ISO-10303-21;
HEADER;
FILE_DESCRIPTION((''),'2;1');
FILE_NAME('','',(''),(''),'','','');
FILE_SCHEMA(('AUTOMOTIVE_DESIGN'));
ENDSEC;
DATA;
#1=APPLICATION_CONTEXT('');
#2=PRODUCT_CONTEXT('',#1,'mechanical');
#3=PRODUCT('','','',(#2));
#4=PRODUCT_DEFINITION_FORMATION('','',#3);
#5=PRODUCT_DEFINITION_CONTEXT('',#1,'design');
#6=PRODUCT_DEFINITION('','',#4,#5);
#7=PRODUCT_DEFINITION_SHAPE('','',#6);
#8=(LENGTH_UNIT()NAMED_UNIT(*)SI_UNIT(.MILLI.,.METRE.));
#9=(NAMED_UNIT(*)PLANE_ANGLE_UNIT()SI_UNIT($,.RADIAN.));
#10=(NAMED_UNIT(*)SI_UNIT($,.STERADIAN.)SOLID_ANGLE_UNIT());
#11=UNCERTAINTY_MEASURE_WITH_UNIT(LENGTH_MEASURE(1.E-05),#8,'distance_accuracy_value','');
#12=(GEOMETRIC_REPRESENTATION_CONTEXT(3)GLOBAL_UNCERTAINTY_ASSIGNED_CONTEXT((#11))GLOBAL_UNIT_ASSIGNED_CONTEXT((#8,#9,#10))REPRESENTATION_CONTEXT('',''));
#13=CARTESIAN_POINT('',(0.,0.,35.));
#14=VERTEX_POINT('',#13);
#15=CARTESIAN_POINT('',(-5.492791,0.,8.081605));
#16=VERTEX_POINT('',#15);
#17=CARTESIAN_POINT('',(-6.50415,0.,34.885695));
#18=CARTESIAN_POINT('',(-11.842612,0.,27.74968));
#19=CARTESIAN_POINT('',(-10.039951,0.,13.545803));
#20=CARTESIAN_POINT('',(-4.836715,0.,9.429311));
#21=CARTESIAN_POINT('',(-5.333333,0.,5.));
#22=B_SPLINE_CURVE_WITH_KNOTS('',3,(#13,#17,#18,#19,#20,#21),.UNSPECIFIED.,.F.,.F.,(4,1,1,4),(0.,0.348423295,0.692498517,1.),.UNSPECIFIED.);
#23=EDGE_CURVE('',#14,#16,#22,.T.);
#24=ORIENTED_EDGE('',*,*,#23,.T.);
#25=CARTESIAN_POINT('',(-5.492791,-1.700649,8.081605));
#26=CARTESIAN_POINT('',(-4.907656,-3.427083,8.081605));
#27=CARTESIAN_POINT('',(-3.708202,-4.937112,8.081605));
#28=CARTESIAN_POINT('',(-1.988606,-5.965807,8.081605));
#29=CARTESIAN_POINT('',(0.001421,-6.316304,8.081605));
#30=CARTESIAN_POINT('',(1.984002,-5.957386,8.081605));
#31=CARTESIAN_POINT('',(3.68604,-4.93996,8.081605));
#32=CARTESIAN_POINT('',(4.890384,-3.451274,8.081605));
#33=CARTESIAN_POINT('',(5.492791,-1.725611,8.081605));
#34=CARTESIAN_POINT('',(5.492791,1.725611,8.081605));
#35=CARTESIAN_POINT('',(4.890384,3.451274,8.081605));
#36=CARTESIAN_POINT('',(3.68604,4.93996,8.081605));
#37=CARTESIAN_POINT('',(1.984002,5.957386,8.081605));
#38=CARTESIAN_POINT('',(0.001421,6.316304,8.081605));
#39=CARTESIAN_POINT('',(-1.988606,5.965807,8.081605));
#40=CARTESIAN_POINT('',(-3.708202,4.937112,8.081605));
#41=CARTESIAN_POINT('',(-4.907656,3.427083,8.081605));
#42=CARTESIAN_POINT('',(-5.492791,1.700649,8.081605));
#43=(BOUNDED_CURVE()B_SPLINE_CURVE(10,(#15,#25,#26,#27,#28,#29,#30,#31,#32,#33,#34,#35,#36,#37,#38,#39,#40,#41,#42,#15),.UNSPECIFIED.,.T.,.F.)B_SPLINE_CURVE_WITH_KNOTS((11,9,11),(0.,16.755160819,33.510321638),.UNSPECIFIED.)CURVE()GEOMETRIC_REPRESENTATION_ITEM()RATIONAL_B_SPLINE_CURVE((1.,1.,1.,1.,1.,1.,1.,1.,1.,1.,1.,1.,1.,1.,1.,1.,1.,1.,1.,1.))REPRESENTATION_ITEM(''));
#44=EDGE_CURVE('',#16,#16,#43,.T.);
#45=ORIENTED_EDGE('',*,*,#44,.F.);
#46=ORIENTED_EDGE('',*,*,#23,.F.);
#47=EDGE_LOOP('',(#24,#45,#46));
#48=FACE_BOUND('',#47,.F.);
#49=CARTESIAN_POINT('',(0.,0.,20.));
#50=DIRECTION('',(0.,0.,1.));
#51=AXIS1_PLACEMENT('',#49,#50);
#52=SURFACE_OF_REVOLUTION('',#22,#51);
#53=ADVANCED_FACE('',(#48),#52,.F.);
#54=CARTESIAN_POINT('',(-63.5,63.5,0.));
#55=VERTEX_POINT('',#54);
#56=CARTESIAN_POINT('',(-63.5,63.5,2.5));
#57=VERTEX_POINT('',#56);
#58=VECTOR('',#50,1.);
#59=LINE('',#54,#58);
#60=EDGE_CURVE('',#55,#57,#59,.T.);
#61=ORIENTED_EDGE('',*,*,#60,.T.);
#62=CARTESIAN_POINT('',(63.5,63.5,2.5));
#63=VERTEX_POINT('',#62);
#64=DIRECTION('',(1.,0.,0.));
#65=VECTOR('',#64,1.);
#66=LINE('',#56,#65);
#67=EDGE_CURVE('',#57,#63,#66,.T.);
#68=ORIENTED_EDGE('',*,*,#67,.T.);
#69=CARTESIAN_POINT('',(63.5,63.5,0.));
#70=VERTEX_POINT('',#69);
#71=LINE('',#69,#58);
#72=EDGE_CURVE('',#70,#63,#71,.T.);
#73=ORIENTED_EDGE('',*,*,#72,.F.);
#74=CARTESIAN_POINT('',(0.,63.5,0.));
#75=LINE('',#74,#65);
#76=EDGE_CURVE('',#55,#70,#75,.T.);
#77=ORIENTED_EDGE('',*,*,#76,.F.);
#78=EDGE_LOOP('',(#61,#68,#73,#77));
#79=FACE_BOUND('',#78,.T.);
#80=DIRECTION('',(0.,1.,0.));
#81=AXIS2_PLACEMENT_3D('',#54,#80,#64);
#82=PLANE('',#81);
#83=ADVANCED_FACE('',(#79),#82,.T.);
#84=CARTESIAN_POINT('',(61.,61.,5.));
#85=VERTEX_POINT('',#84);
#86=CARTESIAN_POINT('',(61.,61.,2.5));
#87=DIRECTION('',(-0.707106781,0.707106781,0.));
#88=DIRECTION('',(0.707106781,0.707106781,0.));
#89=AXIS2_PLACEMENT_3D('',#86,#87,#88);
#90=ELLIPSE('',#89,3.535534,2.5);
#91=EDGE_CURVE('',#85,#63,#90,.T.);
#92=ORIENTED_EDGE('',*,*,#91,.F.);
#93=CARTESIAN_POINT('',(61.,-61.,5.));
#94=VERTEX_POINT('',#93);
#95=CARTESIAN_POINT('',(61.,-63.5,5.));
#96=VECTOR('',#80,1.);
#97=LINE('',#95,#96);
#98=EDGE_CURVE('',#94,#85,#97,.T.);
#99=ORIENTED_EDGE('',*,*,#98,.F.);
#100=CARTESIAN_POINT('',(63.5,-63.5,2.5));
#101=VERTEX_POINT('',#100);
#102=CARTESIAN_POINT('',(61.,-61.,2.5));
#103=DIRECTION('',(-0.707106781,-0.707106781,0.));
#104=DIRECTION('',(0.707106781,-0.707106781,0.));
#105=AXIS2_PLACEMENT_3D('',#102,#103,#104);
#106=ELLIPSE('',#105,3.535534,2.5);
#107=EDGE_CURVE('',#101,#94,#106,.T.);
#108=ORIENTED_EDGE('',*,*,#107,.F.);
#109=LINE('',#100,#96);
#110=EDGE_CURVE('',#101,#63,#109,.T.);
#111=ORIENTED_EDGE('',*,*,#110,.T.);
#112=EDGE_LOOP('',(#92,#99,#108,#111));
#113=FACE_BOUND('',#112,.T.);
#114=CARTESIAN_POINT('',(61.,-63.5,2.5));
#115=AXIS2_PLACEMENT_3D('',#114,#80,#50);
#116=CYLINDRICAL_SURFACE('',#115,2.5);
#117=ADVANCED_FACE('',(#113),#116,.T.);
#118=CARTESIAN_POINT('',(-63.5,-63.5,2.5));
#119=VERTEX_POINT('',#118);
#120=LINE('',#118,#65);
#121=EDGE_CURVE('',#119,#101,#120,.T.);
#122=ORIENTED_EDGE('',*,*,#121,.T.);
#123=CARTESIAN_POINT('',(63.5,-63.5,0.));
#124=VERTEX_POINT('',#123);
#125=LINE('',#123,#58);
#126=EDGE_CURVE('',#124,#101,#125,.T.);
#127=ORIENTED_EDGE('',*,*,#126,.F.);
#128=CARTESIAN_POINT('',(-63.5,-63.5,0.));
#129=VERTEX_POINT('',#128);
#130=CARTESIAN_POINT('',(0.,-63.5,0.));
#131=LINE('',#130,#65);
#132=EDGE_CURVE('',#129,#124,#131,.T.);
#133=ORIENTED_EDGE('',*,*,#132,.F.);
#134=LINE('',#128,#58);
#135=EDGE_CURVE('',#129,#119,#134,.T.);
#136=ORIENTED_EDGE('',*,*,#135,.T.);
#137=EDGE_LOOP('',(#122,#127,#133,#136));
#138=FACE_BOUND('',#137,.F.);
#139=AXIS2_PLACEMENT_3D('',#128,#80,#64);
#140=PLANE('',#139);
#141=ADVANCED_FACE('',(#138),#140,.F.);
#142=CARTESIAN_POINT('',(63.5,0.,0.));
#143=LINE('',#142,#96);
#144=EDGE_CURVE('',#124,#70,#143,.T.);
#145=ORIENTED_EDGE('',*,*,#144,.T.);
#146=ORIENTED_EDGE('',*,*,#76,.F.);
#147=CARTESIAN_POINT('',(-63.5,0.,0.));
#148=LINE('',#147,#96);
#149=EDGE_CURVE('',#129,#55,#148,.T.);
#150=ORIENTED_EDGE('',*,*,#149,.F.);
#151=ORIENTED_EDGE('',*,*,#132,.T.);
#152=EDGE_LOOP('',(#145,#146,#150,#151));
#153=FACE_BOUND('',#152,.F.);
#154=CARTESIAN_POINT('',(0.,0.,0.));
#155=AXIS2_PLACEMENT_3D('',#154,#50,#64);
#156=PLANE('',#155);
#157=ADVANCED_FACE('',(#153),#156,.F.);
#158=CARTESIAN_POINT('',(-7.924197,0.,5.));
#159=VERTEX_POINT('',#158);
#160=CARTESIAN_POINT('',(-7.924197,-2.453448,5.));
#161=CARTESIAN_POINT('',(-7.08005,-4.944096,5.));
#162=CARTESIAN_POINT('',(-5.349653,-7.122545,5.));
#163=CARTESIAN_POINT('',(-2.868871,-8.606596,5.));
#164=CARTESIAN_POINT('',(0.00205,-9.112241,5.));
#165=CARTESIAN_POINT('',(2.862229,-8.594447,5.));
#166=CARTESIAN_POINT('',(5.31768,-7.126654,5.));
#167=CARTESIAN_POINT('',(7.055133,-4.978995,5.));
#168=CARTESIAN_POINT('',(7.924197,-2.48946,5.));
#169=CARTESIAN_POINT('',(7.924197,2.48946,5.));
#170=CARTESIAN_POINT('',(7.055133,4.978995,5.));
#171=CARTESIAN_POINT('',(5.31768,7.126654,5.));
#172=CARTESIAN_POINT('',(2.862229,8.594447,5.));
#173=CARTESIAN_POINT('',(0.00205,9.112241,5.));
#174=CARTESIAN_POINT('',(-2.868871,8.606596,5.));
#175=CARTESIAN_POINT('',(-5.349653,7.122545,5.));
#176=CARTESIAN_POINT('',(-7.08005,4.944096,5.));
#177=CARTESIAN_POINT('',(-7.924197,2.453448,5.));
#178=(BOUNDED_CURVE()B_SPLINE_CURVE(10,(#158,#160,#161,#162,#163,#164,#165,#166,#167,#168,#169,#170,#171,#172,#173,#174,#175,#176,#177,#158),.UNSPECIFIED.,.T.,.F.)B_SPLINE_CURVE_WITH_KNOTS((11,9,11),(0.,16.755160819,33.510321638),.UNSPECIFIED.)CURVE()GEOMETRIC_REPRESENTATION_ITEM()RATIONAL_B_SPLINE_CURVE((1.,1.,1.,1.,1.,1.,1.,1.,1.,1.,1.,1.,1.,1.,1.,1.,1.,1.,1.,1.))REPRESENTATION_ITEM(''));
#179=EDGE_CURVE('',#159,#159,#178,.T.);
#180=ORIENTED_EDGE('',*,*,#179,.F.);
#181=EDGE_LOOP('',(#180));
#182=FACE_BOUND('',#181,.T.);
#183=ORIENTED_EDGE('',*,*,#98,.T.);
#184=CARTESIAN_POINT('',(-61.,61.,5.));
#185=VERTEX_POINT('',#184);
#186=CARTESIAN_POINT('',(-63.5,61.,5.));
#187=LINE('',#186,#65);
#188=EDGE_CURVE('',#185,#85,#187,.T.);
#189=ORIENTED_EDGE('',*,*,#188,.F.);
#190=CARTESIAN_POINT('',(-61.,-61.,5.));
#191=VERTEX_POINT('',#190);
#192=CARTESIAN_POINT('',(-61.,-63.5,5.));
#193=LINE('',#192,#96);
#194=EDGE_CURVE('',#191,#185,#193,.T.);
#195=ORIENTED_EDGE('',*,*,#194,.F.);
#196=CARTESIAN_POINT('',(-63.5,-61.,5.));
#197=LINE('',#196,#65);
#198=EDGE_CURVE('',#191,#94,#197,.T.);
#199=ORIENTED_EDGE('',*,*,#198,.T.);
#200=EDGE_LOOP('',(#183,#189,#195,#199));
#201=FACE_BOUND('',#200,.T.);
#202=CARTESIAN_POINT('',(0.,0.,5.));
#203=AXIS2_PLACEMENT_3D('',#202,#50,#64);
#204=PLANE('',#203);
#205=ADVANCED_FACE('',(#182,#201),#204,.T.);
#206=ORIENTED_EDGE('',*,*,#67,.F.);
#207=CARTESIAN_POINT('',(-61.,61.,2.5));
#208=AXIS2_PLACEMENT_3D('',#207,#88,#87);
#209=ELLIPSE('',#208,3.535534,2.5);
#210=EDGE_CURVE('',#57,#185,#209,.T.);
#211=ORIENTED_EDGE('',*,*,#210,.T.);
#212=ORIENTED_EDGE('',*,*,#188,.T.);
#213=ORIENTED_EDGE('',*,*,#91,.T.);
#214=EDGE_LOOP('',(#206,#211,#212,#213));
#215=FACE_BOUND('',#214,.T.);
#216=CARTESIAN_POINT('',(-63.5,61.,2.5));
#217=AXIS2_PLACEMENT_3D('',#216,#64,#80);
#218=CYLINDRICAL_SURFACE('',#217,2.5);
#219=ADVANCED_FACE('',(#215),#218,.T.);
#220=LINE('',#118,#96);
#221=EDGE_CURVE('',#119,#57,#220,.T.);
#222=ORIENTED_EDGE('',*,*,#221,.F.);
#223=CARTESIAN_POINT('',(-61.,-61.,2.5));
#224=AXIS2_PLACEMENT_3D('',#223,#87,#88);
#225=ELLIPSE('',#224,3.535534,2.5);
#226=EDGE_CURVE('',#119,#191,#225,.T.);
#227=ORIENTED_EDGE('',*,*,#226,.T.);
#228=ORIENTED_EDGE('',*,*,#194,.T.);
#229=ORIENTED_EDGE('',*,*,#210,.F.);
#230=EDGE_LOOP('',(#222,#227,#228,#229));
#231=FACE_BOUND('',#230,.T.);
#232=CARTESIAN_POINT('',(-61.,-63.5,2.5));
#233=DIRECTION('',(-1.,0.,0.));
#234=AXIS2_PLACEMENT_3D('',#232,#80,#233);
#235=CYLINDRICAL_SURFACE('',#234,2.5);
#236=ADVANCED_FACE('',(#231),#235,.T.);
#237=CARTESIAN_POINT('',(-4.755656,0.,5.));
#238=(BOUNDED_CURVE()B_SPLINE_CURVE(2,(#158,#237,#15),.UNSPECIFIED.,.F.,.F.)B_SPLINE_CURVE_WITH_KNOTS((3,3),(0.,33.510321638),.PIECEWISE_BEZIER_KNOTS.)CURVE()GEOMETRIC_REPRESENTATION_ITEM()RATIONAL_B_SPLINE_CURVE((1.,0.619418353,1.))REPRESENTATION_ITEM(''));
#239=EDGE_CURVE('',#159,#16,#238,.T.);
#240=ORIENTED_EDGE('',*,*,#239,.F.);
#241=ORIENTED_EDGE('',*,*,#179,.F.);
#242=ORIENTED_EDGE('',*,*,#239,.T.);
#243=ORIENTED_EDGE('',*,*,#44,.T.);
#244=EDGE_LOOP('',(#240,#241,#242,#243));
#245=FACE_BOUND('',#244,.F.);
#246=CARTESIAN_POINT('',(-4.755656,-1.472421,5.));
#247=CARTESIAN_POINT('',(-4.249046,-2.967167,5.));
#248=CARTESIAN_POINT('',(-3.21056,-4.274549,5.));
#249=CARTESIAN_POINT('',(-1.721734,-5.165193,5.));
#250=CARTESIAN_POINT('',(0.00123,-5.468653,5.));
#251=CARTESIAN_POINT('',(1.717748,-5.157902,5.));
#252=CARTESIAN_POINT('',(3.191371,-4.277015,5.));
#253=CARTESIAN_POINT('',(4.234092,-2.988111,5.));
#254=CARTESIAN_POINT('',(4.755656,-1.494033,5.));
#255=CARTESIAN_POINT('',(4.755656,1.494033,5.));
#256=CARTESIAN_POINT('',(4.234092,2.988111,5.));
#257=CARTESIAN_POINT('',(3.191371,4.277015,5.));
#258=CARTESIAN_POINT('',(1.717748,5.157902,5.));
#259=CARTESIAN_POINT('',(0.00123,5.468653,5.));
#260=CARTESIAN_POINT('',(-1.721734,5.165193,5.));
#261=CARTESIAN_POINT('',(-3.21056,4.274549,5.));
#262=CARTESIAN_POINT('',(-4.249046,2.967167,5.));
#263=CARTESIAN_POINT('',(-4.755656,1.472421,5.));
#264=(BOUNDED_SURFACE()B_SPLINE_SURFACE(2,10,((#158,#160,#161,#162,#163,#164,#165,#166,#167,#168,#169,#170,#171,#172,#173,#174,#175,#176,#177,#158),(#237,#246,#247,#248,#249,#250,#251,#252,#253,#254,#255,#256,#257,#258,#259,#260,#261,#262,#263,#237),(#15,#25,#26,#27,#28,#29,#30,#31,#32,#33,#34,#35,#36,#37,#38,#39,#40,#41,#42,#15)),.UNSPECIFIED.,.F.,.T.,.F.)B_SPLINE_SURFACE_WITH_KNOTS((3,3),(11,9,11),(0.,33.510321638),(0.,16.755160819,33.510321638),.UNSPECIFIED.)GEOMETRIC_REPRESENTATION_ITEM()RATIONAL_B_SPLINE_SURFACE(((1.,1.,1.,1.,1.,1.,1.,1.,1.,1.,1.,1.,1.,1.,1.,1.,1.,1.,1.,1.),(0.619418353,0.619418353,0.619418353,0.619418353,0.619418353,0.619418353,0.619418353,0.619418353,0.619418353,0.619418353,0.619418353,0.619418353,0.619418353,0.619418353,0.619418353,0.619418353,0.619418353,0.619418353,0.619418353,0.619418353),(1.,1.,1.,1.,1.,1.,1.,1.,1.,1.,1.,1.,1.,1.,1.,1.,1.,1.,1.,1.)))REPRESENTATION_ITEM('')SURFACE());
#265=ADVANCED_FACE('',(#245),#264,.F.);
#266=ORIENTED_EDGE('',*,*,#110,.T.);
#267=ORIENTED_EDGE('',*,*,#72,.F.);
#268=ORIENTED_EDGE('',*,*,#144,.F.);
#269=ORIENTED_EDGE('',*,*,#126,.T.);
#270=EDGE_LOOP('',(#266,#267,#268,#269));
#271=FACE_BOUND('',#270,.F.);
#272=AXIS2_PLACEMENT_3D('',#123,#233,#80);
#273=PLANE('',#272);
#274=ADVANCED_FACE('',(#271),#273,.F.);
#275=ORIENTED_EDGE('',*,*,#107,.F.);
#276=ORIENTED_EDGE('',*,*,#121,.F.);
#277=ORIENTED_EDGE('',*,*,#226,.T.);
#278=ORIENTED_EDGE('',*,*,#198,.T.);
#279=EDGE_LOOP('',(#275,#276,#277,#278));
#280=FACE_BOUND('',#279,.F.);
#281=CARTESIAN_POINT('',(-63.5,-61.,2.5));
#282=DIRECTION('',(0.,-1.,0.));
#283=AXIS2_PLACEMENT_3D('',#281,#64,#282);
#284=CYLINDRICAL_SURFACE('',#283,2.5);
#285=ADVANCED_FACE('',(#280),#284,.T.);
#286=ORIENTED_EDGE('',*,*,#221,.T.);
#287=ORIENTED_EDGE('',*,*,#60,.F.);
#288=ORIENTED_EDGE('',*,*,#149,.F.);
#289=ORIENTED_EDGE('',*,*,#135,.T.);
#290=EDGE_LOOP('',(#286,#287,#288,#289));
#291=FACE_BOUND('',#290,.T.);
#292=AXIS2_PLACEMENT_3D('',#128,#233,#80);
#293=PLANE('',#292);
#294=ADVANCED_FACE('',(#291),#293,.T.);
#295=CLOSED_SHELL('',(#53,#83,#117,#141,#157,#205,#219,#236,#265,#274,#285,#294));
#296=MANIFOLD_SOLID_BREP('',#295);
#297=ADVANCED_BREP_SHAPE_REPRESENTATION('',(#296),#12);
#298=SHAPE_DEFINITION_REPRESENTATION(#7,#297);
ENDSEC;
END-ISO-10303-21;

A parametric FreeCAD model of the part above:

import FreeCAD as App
import Part
import Sketcher

V = App.Vector
Q = App.Units.Quantity


def edges_at(feature, points):
    """Names of the edges that pass closest to the given points."""
    edges = feature.Shape.Edges
    near = lambda p: min(range(len(edges)), key=lambda i: edges[i].distToShape(Part.Vertex(*p))[0])
    return sorted({f"Edge{near(p) + 1}" for p in points})

doc = App.newDocument("Part")
body = doc.addObject("PartDesign::Body", "Body")

sketch1 = body.newObject("Sketcher::SketchObject", "Sketch")
sketch1.AttachmentSupport = (doc.getObject("XY_Plane"), [""])
sketch1.MapMode = "FlatFace"
sketch1.addGeometry([
    Part.LineSegment(V(-64, 64, 0), V(-64, -64, 0)),
    Part.LineSegment(V(-64, -64, 0), V(64, -64, 0)),
    Part.LineSegment(V(64, -64, 0), V(64, 64, 0)),
    Part.LineSegment(V(64, 64, 0), V(-64, 64, 0)),
], False)
sketch1.addConstraint([
    Sketcher.Constraint("Coincident", 0, 2, 1, 1),
    Sketcher.Constraint("Coincident", 1, 2, 2, 1),
    Sketcher.Constraint("Coincident", 2, 2, 3, 1),
    Sketcher.Constraint("Coincident", 3, 2, 0, 1),
    Sketcher.Constraint("Vertical", 0),
    Sketcher.Constraint("Horizontal", 1),
    Sketcher.Constraint("Vertical", 2),
    Sketcher.Constraint("Horizontal", 3),
    Sketcher.Constraint("Symmetric", 0, 2, 2, 2, -1, 1),
    Sketcher.Constraint("Equal", 3, 0),
    Sketcher.Constraint("DistanceX", 1, 1, 1, 2, Q("127 mm")),
])
pad1 = body.newObject("PartDesign::Pad", "Pad")
pad1.Profile = sketch1
pad1.Length = 5

sketch2 = body.newObject("Sketcher::SketchObject", "Sketch001")
sketch2.AttachmentSupport = (doc.getObject("XZ_Plane"), [""])
sketch2.MapMode = "FlatFace"
sketch2.addGeometry([
    Part.LineSegment(V(-5.333333, 5, 0), V(0, 5, 0)),
    Part.LineSegment(V(0, 5, 0), V(0, 35, 0)),
    Part.BSplineCurve([V(0, 35, 0), V(-6.50415, 34.885695, 0), V(-11.842612, 27.74968, 0), V(-10.039951, 13.545803, 0), V(-4.836715, 9.429311, 0), V(-5.333333, 5, 0)], [4, 1, 1, 4], [0, 0.348423295, 0.692498517, 1], False, 3, [1, 1, 1, 1, 1, 1], False),
], False)
sketch2.addConstraint([
    Sketcher.Constraint("Block", 2),
    Sketcher.Constraint("Coincident", 0, 2, 1, 1),
    Sketcher.Constraint("Coincident", 1, 2, 2, 1),
    Sketcher.Constraint("Coincident", 2, 2, 0, 1),
    Sketcher.Constraint("Horizontal", 0),
    Sketcher.Constraint("Vertical", 1),
])
revolution = body.newObject("PartDesign::Revolution", "Revolution")
revolution.Profile = sketch2
revolution.ReferenceAxis = (sketch2, ["V_Axis"])
revolution.Angle = 360
doc.recompute()

fillet = body.newObject("PartDesign::Fillet", "Fillet")
fillet.Base = (revolution, edges_at(revolution, [
    (0, -63.5, 5),
    (-63.5, 0, 5),
    (63.5, 0, 5),
    (0, 63.5, 5),
    (5.333, 0, 5),
]))
fillet.Radius = 2.5

doc.recompute()
